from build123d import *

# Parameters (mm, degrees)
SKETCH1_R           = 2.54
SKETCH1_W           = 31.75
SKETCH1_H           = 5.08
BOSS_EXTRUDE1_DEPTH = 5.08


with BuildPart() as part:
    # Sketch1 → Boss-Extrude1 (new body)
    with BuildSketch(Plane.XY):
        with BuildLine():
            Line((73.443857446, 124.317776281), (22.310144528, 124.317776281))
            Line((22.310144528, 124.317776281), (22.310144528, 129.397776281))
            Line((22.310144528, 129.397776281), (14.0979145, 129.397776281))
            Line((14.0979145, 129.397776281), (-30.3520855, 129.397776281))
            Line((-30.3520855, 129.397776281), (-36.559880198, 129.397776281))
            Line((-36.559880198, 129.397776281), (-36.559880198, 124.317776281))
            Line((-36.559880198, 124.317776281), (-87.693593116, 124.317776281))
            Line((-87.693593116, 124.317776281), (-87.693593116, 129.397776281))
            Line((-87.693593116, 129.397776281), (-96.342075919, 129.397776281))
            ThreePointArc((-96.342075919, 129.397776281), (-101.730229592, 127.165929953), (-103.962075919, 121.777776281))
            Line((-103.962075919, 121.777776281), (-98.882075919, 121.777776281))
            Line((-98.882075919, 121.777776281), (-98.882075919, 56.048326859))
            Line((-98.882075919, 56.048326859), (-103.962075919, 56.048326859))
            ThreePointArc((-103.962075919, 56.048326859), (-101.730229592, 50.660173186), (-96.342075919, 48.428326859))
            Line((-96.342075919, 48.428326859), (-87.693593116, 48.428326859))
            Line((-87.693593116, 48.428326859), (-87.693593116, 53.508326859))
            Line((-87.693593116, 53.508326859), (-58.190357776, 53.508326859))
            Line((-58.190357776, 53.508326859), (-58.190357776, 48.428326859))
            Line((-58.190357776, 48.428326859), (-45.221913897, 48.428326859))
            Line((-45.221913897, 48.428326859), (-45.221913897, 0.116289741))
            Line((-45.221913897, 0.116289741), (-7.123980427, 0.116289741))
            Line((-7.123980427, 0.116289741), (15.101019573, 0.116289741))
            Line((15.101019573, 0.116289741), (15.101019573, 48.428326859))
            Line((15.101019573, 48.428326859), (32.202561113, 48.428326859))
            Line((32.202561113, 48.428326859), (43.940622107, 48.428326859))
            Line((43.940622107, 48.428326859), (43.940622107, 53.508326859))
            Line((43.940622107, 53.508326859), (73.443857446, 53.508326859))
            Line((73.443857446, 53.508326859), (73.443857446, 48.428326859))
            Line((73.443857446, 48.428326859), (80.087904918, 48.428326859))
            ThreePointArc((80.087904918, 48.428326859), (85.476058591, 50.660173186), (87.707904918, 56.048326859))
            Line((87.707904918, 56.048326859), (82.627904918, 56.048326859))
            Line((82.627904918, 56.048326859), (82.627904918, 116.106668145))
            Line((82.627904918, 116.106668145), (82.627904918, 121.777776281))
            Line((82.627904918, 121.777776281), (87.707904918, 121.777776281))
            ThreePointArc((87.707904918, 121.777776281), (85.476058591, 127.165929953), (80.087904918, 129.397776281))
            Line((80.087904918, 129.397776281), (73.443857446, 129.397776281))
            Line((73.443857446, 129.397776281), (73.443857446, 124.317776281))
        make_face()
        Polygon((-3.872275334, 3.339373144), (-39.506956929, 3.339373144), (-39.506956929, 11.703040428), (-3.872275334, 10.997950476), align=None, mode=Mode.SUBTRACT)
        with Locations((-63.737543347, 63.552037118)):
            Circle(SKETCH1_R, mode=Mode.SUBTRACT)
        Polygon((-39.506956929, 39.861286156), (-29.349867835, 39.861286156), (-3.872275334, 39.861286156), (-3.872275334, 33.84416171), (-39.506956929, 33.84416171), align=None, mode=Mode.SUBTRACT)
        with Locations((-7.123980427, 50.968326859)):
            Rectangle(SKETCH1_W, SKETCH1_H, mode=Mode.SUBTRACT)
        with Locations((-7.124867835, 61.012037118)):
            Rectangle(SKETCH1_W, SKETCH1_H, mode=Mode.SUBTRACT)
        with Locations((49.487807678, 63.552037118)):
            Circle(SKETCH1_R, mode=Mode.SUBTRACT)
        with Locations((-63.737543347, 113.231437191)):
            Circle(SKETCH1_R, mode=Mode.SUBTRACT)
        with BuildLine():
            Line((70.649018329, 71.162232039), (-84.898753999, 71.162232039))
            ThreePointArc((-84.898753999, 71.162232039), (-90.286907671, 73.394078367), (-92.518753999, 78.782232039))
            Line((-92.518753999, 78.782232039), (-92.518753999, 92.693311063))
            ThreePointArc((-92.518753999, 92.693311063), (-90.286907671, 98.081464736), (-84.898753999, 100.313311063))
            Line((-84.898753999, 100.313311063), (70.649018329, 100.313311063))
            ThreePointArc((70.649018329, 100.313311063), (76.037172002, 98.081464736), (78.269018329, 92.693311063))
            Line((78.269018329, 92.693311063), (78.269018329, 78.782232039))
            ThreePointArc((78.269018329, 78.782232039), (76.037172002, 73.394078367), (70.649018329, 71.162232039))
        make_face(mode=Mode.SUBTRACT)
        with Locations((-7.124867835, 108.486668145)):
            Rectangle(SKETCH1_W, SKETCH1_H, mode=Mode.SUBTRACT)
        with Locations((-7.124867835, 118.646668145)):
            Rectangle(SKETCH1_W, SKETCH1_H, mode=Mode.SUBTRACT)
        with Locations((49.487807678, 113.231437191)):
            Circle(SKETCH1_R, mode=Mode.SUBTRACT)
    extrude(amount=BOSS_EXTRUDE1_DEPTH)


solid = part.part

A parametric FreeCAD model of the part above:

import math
import FreeCAD as App
import Part
import Sketcher
from FreeCAD import Vector
Q = App.Units.Quantity


def add_polygon(sketch, points):
    """Adds a closed chain of lines whose ends are joined by coincident constraints."""
    first, n = sketch.GeometryCount, len(points)
    for a, b in zip(points, points[1:] + points[:1]):
        sketch.addGeometry(Part.LineSegment(App.Vector(*a, 0), App.Vector(*b, 0)), False)
    for i in range(n):
        sketch.addConstraint(Sketcher.Constraint("Coincident", first + i, 2, first + (i + 1) % n, 1))

doc = App.newDocument("Part")
body = doc.addObject("PartDesign::Body", "Body")

sketch1 = body.newObject("Sketcher::SketchObject", "Sketch")
sketch1.AttachmentSupport = (doc.getObject("XY_Plane"), [""])
sketch1.MapMode = "FlatFace"
sketch1.addGeometry(Part.LineSegment(Vector(73.443857, 124.317776, 0), Vector(22.310145, 124.317776, 0)), False)
sketch1.addGeometry(Part.LineSegment(Vector(22.310145, 124.317776, 0), Vector(22.310145, 129.397776, 0)), False)
sketch1.addGeometry(Part.LineSegment(Vector(22.310145, 129.397776, 0), Vector(-36.55988, 129.397776, 0)), False)
sketch1.addGeometry(Part.LineSegment(Vector(-36.55988, 129.397776, 0), Vector(-36.55988, 124.317776, 0)), False)
sketch1.addGeometry(Part.LineSegment(Vector(-36.55988, 124.317776, 0), Vector(-87.693593, 124.317776, 0)), False)
sketch1.addGeometry(Part.LineSegment(Vector(-87.693593, 124.317776, 0), Vector(-87.693593, 129.397776, 0)), False)
sketch1.addGeometry(Part.LineSegment(Vector(-87.693593, 129.397776, 0), Vector(-96.342076, 129.397776, 0)), False)
sketch1.addGeometry(Part.ArcOfCircle(Part.Circle(Vector(-96.342076, 121.777776, 0), Vector(0, 0, 1), 7.62), math.radians(90), math.radians(180)), False)
sketch1.addGeometry(Part.LineSegment(Vector(-103.962076, 121.777776, 0), Vector(-98.882076, 121.777776, 0)), False)
sketch1.addGeometry(Part.LineSegment(Vector(-98.882076, 121.777776, 0), Vector(-98.882076, 56.048327, 0)), False)
sketch1.addGeometry(Part.LineSegment(Vector(-98.882076, 56.048327, 0), Vector(-103.962076, 56.048327, 0)), False)
sketch1.addGeometry(Part.ArcOfCircle(Part.Circle(Vector(-96.342076, 56.048327, 0), Vector(0, 0, 1), 7.62), math.radians(180), math.radians(270)), False)
sketch1.addGeometry(Part.LineSegment(Vector(-96.342076, 48.428327, 0), Vector(-87.693593, 48.428327, 0)), False)
sketch1.addGeometry(Part.LineSegment(Vector(-87.693593, 48.428327, 0), Vector(-87.693593, 53.508327, 0)), False)
sketch1.addGeometry(Part.LineSegment(Vector(-87.693593, 53.508327, 0), Vector(-58.190358, 53.508327, 0)), False)
sketch1.addGeometry(Part.LineSegment(Vector(-58.190358, 53.508327, 0), Vector(-58.190358, 48.428327, 0)), False)
sketch1.addGeometry(Part.LineSegment(Vector(-58.190358, 48.428327, 0), Vector(-45.221914, 48.428327, 0)), False)
sketch1.addGeometry(Part.LineSegment(Vector(-45.221914, 48.428327, 0), Vector(-45.221914, 0.11629, 0)), False)
sketch1.addGeometry(Part.LineSegment(Vector(-45.221914, 0.11629, 0), Vector(15.10102, 0.11629, 0)), False)
sketch1.addGeometry(Part.LineSegment(Vector(15.10102, 0.11629, 0), Vector(15.10102, 48.428327, 0)), False)
sketch1.addGeometry(Part.LineSegment(Vector(15.10102, 48.428327, 0), Vector(43.940622, 48.428327, 0)), False)
sketch1.addGeometry(Part.LineSegment(Vector(43.940622, 48.428327, 0), Vector(43.940622, 53.508327, 0)), False)
sketch1.addGeometry(Part.LineSegment(Vector(43.940622, 53.508327, 0), Vector(73.443857, 53.508327, 0)), False)
sketch1.addGeometry(Part.LineSegment(Vector(73.443857, 53.508327, 0), Vector(73.443857, 48.428327, 0)), False)
sketch1.addGeometry(Part.LineSegment(Vector(73.443857, 48.428327, 0), Vector(80.087905, 48.428327, 0)), False)
sketch1.addGeometry(Part.ArcOfCircle(Part.Circle(Vector(80.087905, 56.048327, 0), Vector(0, 0, 1), 7.62), math.radians(-90), math.radians(0)), False)
sketch1.addGeometry(Part.LineSegment(Vector(87.707905, 56.048327, 0), Vector(82.627905, 56.048327, 0)), False)
sketch1.addGeometry(Part.LineSegment(Vector(82.627905, 56.048327, 0), Vector(82.627905, 121.777776, 0)), False)
sketch1.addGeometry(Part.LineSegment(Vector(82.627905, 121.777776, 0), Vector(87.707905, 121.777776, 0)), False)
sketch1.addGeometry(Part.ArcOfCircle(Part.Circle(Vector(80.087905, 121.777776, 0), Vector(0, 0, 1), 7.62), math.radians(0), math.radians(90)), False)
sketch1.addGeometry(Part.LineSegment(Vector(80.087905, 129.397776, 0), Vector(73.443857, 129.397776, 0)), False)
sketch1.addGeometry(Part.LineSegment(Vector(73.443857, 129.397776, 0), Vector(73.443857, 124.317776, 0)), False)
add_polygon(sketch1, [(-3.872275, 10.99795), (-3.872275, 3.339373), (-39.506957, 3.339373), (-39.506957, 11.70304)])
add_polygon(sketch1, [(-39.506957, 33.844162), (-39.506957, 39.861286), (-3.872275, 39.861286), (-3.872275, 33.844162)])
add_polygon(sketch1, [(8.750132, 58.472037), (-22.999868, 58.472037), (-22.999868, 63.552037), (8.750132, 63.552037)])
add_polygon(sketch1, [(8.75102, 48.428327), (-22.99898, 48.428327), (-22.99898, 53.508327), (8.75102, 53.508327)])
sketch1.addGeometry(Part.Circle(Vector(-63.737543, 63.552037, 0), Vector(0, 0, 1), 2.54), False)
sketch1.addGeometry(Part.Circle(Vector(-63.737543, 113.231437, 0), Vector(0, 0, 1), 2.54), False)
add_polygon(sketch1, [(8.750132, 105.946668), (-22.999868, 105.946668), (-22.999868, 111.026668), (8.750132, 111.026668)])
add_polygon(sketch1, [(8.750132, 116.106668), (-22.999868, 116.106668), (-22.999868, 121.186668), (8.750132, 121.186668)])
sketch1.addGeometry(Part.ArcOfCircle(Part.Circle(Vector(70.649018, 78.782232, 0), Vector(0, 0, 1), 7.62), math.radians(-90), math.radians(0)), False)
sketch1.addGeometry(Part.LineSegment(Vector(70.649018, 71.162232, 0), Vector(-84.898754, 71.162232, 0)), False)
sketch1.addGeometry(Part.ArcOfCircle(Part.Circle(Vector(-84.898754, 78.782232, 0), Vector(0, 0, 1), 7.62), math.radians(-180), math.radians(-90)), False)
sketch1.addGeometry(Part.LineSegment(Vector(-92.518754, 78.782232, 0), Vector(-92.518754, 92.693311, 0)), False)
sketch1.addGeometry(Part.ArcOfCircle(Part.Circle(Vector(-84.898754, 92.693311, 0), Vector(0, 0, 1), 7.62), math.radians(90), math.radians(180)), False)
sketch1.addGeometry(Part.LineSegment(Vector(-84.898754, 100.313311, 0), Vector(70.649018, 100.313311, 0)), False)
sketch1.addGeometry(Part.ArcOfCircle(Part.Circle(Vector(70.649018, 92.693311, 0), Vector(0, 0, 1), 7.62), math.radians(0), math.radians(90)), False)
sketch1.addGeometry(Part.LineSegment(Vector(78.269018, 92.693311, 0), Vector(78.269018, 78.782232, 0)), False)
sketch1.addGeometry(Part.Circle(Vector(49.487808, 63.552037, 0), Vector(0, 0, 1), 2.54), False)
sketch1.addGeometry(Part.Circle(Vector(49.487808, 113.231437, 0), Vector(0, 0, 1), 2.54), False)
sketch1.addConstraint(Sketcher.Constraint("Coincident", 0, 2, 1, 1))
sketch1.addConstraint(Sketcher.Constraint("Coincident", 1, 2, 2, 1))
sketch1.addConstraint(Sketcher.Constraint("Coincident", 2, 2, 3, 1))
sketch1.addConstraint(Sketcher.Constraint("Coincident", 3, 2, 4, 1))
sketch1.addConstraint(Sketcher.Constraint("Coincident", 4, 2, 5, 1))
sketch1.addConstraint(Sketcher.Constraint("Coincident", 5, 2, 6, 1))
sketch1.addConstraint(Sketcher.Constraint("Tangent", 6, 2, 7, 1))
sketch1.addConstraint(Sketcher.Constraint("Coincident", 7, 2, 8, 1))
sketch1.addConstraint(Sketcher.Constraint("Coincident", 8, 2, 9, 1))
sketch1.addConstraint(Sketcher.Constraint("Coincident", 9, 2, 10, 1))
sketch1.addConstraint(Sketcher.Constraint("Coincident", 10, 2, 11, 1))
sketch1.addConstraint(Sketcher.Constraint("Tangent", 11, 2, 12, 1))
sketch1.addConstraint(Sketcher.Constraint("Coincident", 12, 2, 13, 1))
sketch1.addConstraint(Sketcher.Constraint("Coincident", 13, 2, 14, 1))
sketch1.addConstraint(Sketcher.Constraint("Coincident", 14, 2, 15, 1))
sketch1.addConstraint(Sketcher.Constraint("Coincident", 15, 2, 16, 1))
sketch1.addConstraint(Sketcher.Constraint("Coincident", 16, 2, 17, 1))
sketch1.addConstraint(Sketcher.Constraint("Coincident", 17, 2, 18, 1))
sketch1.addConstraint(Sketcher.Constraint("Coincident", 18, 2, 19, 1))
sketch1.addConstraint(Sketcher.Constraint("Coincident", 19, 2, 20, 1))
sketch1.addConstraint(Sketcher.Constraint("Coincident", 20, 2, 21, 1))
sketch1.addConstraint(Sketcher.Constraint("Coincident", 21, 2, 22, 1))
sketch1.addConstraint(Sketcher.Constraint("Coincident", 22, 2, 23, 1))
sketch1.addConstraint(Sketcher.Constraint("Coincident", 23, 2, 24, 1))
sketch1.addConstraint(Sketcher.Constraint("Tangent", 24, 2, 25, 1))
sketch1.addConstraint(Sketcher.Constraint("Coincident", 25, 2, 26, 1))
sketch1.addConstraint(Sketcher.Constraint("Coincident", 26, 2, 27, 1))
sketch1.addConstraint(Sketcher.Constraint("Coincident", 27, 2, 28, 1))
sketch1.addConstraint(Sketcher.Constraint("Coincident", 28, 2, 29, 1))
sketch1.addConstraint(Sketcher.Constraint("Tangent", 29, 2, 30, 1))
sketch1.addConstraint(Sketcher.Constraint("Coincident", 30, 2, 31, 1))
sketch1.addConstraint(Sketcher.Constraint("Coincident", 31, 2, 0, 1))
sketch1.addConstraint(Sketcher.Constraint("Tangent", 58, 1, 59, 1))
sketch1.addConstraint(Sketcher.Constraint("Tangent", 59, 2, 60, 2))
sketch1.addConstraint(Sketcher.Constraint("Tangent", 60, 1, 61, 1))
sketch1.addConstraint(Sketcher.Constraint("Tangent", 61, 2, 62, 2))
sketch1.addConstraint(Sketcher.Constraint("Tangent", 62, 1, 63, 1))
sketch1.addConstraint(Sketcher.Constraint("Tangent", 63, 2, 64, 2))
sketch1.addConstraint(Sketcher.Constraint("Tangent", 64, 1, 65, 1))
sketch1.addConstraint(Sketcher.Constraint("Tangent", 65, 2, 58, 2))
sketch1.addConstraint(Sketcher.Constraint("Horizontal", 0))
sketch1.addConstraint(Sketcher.Constraint("Vertical", 1))
sketch1.addConstraint(Sketcher.Constraint("Horizontal", 2))
sketch1.addConstraint(Sketcher.Constraint("Vertical", 3))
sketch1.addConstraint(Sketcher.Constraint("Horizontal", 4))
sketch1.addConstraint(Sketcher.Constraint("Vertical", 5))
sketch1.addConstraint(Sketcher.Constraint("Horizontal", 6))
sketch1.addConstraint(Sketcher.Constraint("Horizontal", 8))
sketch1.addConstraint(Sketcher.Constraint("Vertical", 9))
sketch1.addConstraint(Sketcher.Constraint("Horizontal", 10))
sketch1.addConstraint(Sketcher.Constraint("Horizontal", 12))
sketch1.addConstraint(Sketcher.Constraint("Vertical", 13))
sketch1.addConstraint(Sketcher.Constraint("Horizontal", 14))
sketch1.addConstraint(Sketcher.Constraint("Vertical", 15))
sketch1.addConstraint(Sketcher.Constraint("Horizontal", 16))
sketch1.addConstraint(Sketcher.Constraint("Vertical", 17))
sketch1.addConstraint(Sketcher.Constraint("Horizontal", 18))
sketch1.addConstraint(Sketcher.Constraint("Vertical", 19))
sketch1.addConstraint(Sketcher.Constraint("Horizontal", 20))
sketch1.addConstraint(Sketcher.Constraint("Vertical", 21))
sketch1.addConstraint(Sketcher.Constraint("Horizontal", 22))
sketch1.addConstraint(Sketcher.Constraint("Vertical", 23))
sketch1.addConstraint(Sketcher.Constraint("Horizontal", 24))
sketch1.addConstraint(Sketcher.Constraint("Horizontal", 26))
sketch1.addConstraint(Sketcher.Constraint("Vertical", 27))
sketch1.addConstraint(Sketcher.Constraint("Horizontal", 28))
sketch1.addConstraint(Sketcher.Constraint("Horizontal", 30))
sketch1.addConstraint(Sketcher.Constraint("Vertical", 31))
sketch1.addConstraint(Sketcher.Constraint("Vertical", 32))
sketch1.addConstraint(Sketcher.Constraint("Horizontal", 33))
sketch1.addConstraint(Sketcher.Constraint("Vertical", 34))
sketch1.addConstraint(Sketcher.Constraint("Vertical", 36))
sketch1.addConstraint(Sketcher.Constraint("Horizontal", 37))
sketch1.addConstraint(Sketcher.Constraint("Vertical", 38))
sketch1.addConstraint(Sketcher.Constraint("Horizontal", 39))
sketch1.addConstraint(Sketcher.Constraint("Horizontal", 40))
sketch1.addConstraint(Sketcher.Constraint("Vertical", 41))
sketch1.addConstraint(Sketcher.Constraint("Horizontal", 42))
sketch1.addConstraint(Sketcher.Constraint("Vertical", 43))
sketch1.addConstraint(Sketcher.Constraint("Horizontal", 44))
sketch1.addConstraint(Sketcher.Constraint("Vertical", 45))
sketch1.addConstraint(Sketcher.Constraint("Horizontal", 46))
sketch1.addConstraint(Sketcher.Constraint("Vertical", 47))
sketch1.addConstraint(Sketcher.Constraint("Horizontal", 50))
sketch1.addConstraint(Sketcher.Constraint("Vertical", 51))
sketch1.addConstraint(Sketcher.Constraint("Horizontal", 52))
sketch1.addConstraint(Sketcher.Constraint("Vertical", 53))
sketch1.addConstraint(Sketcher.Constraint("Horizontal", 54))
sketch1.addConstraint(Sketcher.Constraint("Vertical", 55))
sketch1.addConstraint(Sketcher.Constraint("Horizontal", 56))
sketch1.addConstraint(Sketcher.Constraint("Vertical", 57))
sketch1.addConstraint(Sketcher.Constraint("Horizontal", 59))
sketch1.addConstraint(Sketcher.Constraint("Vertical", 61))
sketch1.addConstraint(Sketcher.Constraint("Horizontal", 63))
sketch1.addConstraint(Sketcher.Constraint("Vertical", 65))
sketch1.addConstraint(Sketcher.Constraint("Equal", 7, 11))
sketch1.addConstraint(Sketcher.Constraint("Equal", 11, 25))
sketch1.addConstraint(Sketcher.Constraint("Equal", 25, 29))
sketch1.addConstraint(Sketcher.Constraint("Equal", 48, 49))
sketch1.addConstraint(Sketcher.Constraint("Equal", 29, 58))
sketch1.addConstraint(Sketcher.Constraint("Equal", 58, 60))
sketch1.addConstraint(Sketcher.Constraint("Equal", 60, 62))
sketch1.addConstraint(Sketcher.Constraint("Equal", 62, 64))
sketch1.addConstraint(Sketcher.Constraint("Equal", 49, 66))
sketch1.addConstraint(Sketcher.Constraint("Equal", 66, 67))
sketch1.addConstraint(Sketcher.Constraint("Horizontal", 11, 3, 25, 3))
sketch1.addConstraint(Sketcher.Constraint("Horizontal", 7, 3, 29, 3))
sketch1.addConstraint(Sketcher.Constraint("Horizontal", 48, 3, 66, 3))
sketch1.addConstraint(Sketcher.Constraint("Horizontal", 49, 3, 67, 3))
sketch1.addConstraint(Sketcher.Constraint("Horizontal", 0, 2, 3, 2))
sketch1.addConstraint(Sketcher.Constraint("Horizontal", 2, 2, 5, 2))
sketch1.addConstraint(Sketcher.Constraint("Horizontal", 29, 3, 7, 2))
sketch1.addConstraint(Sketcher.Constraint("Horizontal", 25, 3, 9, 2))
sketch1.addConstraint(Sketcher.Constraint("Horizontal", 12, 2, 15, 2))
sketch1.addConstraint(Sketcher.Constraint("Horizontal", 16, 2, 19, 2))
sketch1.addConstraint(Sketcher.Constraint("Horizontal", 14, 2, 21, 2))
sketch1.addConstraint(Sketcher.Constraint("Horizontal", 10, 2, 25, 2))
sketch1.addConstraint(Sketcher.Constraint("Horizontal", 8, 2, 27, 2))
sketch1.addConstraint(Sketcher.Constraint("Horizontal", 66, 3, 41, 2))
sketch1.addConstraint(Sketcher.Constraint("Horizontal", 24, 2, 44, 2))
sketch1.addConstraint(Sketcher.Constraint("Horizontal", 22, 2, 45, 2))
sketch1.addConstraint(Sketcher.Constraint("Vertical", 7, 3, 11, 3))
sketch1.addConstraint(Sketcher.Constraint("Vertical", 25, 3, 29, 3))
sketch1.addConstraint(Sketcher.Constraint("Vertical", 48, 3, 49, 3))
sketch1.addConstraint(Sketcher.Constraint("Vertical", 66, 3, 67, 3))
sketch1.addConstraint(Sketcher.Constraint("Vertical", 5, 2, 12, 2))
sketch1.addConstraint(Sketcher.Constraint("Vertical", 23, 2, 30, 2))
sketch1.addConstraint(Sketcher.Constraint("Vertical", 34, 2, 36, 2))
sketch1.addConstraint(Sketcher.Constraint("Vertical", 35, 2, 37, 2))
sketch1.addConstraint(Sketcher.Constraint("Vertical", 41, 2, 50, 2))
sketch1.addConstraint(Sketcher.Constraint("Vertical", 43, 2, 52, 2))
sketch1.addConstraint(Sketcher.Constraint("Vertical", 51, 2, 54, 2))
sketch1.addConstraint(Sketcher.Constraint("Vertical", 53, 2, 56, 2))
sketch1.addConstraint(Sketcher.Constraint("Equal", 0, 4))
sketch1.addConstraint(Sketcher.Constraint("Equal", 14, 22))
sketch1.addConstraint(Sketcher.Constraint("Equal", 10, 26))
sketch1.addConstraint(Sketcher.Constraint("Equal", 42, 44))
sketch1.addConstraint(Sketcher.Constraint("Equal", 28, 1))
sketch1.addConstraint(Sketcher.Constraint("Equal", 5, 13))
sketch1.addConstraint(Sketcher.Constraint("Equal", 31, 41))
sketch1.addConstraint(Sketcher.Constraint("Equal", 47, 51))
sketch1.addConstraint(Sketcher.Constraint("Equal", 53, 55))
sketch1.addConstraint(Sketcher.Constraint("Diameter", 48, Q("0.2 in")))
sketch1.addConstraint(Sketcher.Constraint("Radius", 7, Q("0.3 in")))
sketch1.addConstraint(Sketcher.Constraint("DistanceX", 8, 1, 8, 2, Q("0.2 in")))
sketch1.addConstraint(Sketcher.Constraint("DistanceX", 40, 2, 40, 1, Q("1.25 in")))
sketch1.addConstraint(Sketcher.Constraint("DistanceX", 33, 2, 33, 1, Q("35.634682 mm")))
sketch1.addConstraint(Sketcher.Constraint("DistanceY", 9, 2, 9, 1, Q("65.729449 mm")))
sketch1.addConstraint(Sketcher.Constraint("DistanceY", 61, 1, 61, 2, Q("13.911079 mm")))
sketch1.addConstraint(Sketcher.Constraint("DistanceX", 0, 2, 0, 1, Q("51.133713 mm")))
sketch1.addConstraint(Sketcher.Constraint("DistanceX", 2, 2, 2, 1, Q("58.870025 mm")))
sketch1.addConstraint(Sketcher.Constraint("DistanceX", 6, 2, 6, 1, Q("8.648483 mm")))
sketch1.addConstraint(Sketcher.Constraint("DistanceX", 14, 1, 14, 2, Q("29.503235 mm")))
sketch1.addConstraint(Sketcher.Constraint("DistanceX", 16, 1, 16, 2, Q("12.968444 mm")))
sketch1.addConstraint(Sketcher.Constraint("DistanceX", 18, 1, 18, 2, Q("60.322933 mm")))
sketch1.addConstraint(Sketcher.Constraint("DistanceX", 24, 1, 24, 2, Q("6.644047 mm")))
sketch1.addConstraint(Sketcher.Constraint("DistanceX", 59, 2, 59, 1, Q("155.547772 mm")))
sketch1.addConstraint(Sketcher.Constraint("DistanceY", 17, 2, 17, 1, Q("48.312037 mm")))
sketch1.addConstraint(Sketcher.Constraint("DistanceY", 32, 2, 32, 1, Q("7.658577 mm")))
sketch1.addConstraint(Sketcher.Constraint("DistanceY", 34, 1, 34, 2, Q("8.363667 mm")))
sketch1.addConstraint(Sketcher.Constraint("DistanceY", 36, 1, 36, 2, Q("6.017124 mm")))
sketch1.addConstraint(Sketcher.Constraint("DistanceX", -1, 1, 58, 3, Q("70.649018 mm")))
sketch1.addConstraint(Sketcher.Constraint("DistanceY", -1, 1, 62, 3, Q("92.693311 mm")))
sketch1.addConstraint(Sketcher.Constraint("DistanceX", 2, 2, -1, 1, Q("36.55988 mm")))
sketch1.addConstraint(Sketcher.Constraint("DistanceY", -1, 1, 17, 2, Q("0.11629 mm")))
sketch1.addConstraint(Sketcher.Constraint("DistanceY", -1, 1, 34, 2, Q("11.70304 mm")))
sketch1.addConstraint(Sketcher.Constraint("DistanceY", -1, 1, 38, 2, Q("33.844162 mm")))
sketch1.addConstraint(Sketcher.Constraint("DistanceX", 44, 2, -1, 1, Q("22.99898 mm")))
sketch1.addConstraint(Sketcher.Constraint("DistanceY", -1, 1, 50, 2, Q("105.946668 mm")))
sketch1.addConstraint(Sketcher.Constraint("DistanceY", -1, 1, 54, 2, Q("116.106668 mm")))
sketch1.addConstraint(Sketcher.Constraint("DistanceX", 48, 3, -1, 1, Q("63.737543 mm")))
sketch1.addConstraint(Sketcher.Constraint("DistanceY", -1, 1, 48, 3, Q("63.552037 mm")))
sketch1.addConstraint(Sketcher.Constraint("DistanceY", -1, 1, 49, 3, Q("113.231437 mm")))
sketch1.addConstraint(Sketcher.Constraint("DistanceX", -1, 1, 66, 3, Q("49.487808 mm")))
sketch1.addConstraint(Sketcher.Constraint("DistanceX", 32, 2, -1, 1, Q("3.872275 mm")))
sketch1.addConstraint(Sketcher.Constraint("DistanceX", 40, 2, -1, 1, Q("22.999868 mm")))
pad1 = body.newObject("PartDesign::Pad", "Pad")
pad1.Profile = sketch1
pad1.Length = Q("0.2 in")

doc.recompute()
